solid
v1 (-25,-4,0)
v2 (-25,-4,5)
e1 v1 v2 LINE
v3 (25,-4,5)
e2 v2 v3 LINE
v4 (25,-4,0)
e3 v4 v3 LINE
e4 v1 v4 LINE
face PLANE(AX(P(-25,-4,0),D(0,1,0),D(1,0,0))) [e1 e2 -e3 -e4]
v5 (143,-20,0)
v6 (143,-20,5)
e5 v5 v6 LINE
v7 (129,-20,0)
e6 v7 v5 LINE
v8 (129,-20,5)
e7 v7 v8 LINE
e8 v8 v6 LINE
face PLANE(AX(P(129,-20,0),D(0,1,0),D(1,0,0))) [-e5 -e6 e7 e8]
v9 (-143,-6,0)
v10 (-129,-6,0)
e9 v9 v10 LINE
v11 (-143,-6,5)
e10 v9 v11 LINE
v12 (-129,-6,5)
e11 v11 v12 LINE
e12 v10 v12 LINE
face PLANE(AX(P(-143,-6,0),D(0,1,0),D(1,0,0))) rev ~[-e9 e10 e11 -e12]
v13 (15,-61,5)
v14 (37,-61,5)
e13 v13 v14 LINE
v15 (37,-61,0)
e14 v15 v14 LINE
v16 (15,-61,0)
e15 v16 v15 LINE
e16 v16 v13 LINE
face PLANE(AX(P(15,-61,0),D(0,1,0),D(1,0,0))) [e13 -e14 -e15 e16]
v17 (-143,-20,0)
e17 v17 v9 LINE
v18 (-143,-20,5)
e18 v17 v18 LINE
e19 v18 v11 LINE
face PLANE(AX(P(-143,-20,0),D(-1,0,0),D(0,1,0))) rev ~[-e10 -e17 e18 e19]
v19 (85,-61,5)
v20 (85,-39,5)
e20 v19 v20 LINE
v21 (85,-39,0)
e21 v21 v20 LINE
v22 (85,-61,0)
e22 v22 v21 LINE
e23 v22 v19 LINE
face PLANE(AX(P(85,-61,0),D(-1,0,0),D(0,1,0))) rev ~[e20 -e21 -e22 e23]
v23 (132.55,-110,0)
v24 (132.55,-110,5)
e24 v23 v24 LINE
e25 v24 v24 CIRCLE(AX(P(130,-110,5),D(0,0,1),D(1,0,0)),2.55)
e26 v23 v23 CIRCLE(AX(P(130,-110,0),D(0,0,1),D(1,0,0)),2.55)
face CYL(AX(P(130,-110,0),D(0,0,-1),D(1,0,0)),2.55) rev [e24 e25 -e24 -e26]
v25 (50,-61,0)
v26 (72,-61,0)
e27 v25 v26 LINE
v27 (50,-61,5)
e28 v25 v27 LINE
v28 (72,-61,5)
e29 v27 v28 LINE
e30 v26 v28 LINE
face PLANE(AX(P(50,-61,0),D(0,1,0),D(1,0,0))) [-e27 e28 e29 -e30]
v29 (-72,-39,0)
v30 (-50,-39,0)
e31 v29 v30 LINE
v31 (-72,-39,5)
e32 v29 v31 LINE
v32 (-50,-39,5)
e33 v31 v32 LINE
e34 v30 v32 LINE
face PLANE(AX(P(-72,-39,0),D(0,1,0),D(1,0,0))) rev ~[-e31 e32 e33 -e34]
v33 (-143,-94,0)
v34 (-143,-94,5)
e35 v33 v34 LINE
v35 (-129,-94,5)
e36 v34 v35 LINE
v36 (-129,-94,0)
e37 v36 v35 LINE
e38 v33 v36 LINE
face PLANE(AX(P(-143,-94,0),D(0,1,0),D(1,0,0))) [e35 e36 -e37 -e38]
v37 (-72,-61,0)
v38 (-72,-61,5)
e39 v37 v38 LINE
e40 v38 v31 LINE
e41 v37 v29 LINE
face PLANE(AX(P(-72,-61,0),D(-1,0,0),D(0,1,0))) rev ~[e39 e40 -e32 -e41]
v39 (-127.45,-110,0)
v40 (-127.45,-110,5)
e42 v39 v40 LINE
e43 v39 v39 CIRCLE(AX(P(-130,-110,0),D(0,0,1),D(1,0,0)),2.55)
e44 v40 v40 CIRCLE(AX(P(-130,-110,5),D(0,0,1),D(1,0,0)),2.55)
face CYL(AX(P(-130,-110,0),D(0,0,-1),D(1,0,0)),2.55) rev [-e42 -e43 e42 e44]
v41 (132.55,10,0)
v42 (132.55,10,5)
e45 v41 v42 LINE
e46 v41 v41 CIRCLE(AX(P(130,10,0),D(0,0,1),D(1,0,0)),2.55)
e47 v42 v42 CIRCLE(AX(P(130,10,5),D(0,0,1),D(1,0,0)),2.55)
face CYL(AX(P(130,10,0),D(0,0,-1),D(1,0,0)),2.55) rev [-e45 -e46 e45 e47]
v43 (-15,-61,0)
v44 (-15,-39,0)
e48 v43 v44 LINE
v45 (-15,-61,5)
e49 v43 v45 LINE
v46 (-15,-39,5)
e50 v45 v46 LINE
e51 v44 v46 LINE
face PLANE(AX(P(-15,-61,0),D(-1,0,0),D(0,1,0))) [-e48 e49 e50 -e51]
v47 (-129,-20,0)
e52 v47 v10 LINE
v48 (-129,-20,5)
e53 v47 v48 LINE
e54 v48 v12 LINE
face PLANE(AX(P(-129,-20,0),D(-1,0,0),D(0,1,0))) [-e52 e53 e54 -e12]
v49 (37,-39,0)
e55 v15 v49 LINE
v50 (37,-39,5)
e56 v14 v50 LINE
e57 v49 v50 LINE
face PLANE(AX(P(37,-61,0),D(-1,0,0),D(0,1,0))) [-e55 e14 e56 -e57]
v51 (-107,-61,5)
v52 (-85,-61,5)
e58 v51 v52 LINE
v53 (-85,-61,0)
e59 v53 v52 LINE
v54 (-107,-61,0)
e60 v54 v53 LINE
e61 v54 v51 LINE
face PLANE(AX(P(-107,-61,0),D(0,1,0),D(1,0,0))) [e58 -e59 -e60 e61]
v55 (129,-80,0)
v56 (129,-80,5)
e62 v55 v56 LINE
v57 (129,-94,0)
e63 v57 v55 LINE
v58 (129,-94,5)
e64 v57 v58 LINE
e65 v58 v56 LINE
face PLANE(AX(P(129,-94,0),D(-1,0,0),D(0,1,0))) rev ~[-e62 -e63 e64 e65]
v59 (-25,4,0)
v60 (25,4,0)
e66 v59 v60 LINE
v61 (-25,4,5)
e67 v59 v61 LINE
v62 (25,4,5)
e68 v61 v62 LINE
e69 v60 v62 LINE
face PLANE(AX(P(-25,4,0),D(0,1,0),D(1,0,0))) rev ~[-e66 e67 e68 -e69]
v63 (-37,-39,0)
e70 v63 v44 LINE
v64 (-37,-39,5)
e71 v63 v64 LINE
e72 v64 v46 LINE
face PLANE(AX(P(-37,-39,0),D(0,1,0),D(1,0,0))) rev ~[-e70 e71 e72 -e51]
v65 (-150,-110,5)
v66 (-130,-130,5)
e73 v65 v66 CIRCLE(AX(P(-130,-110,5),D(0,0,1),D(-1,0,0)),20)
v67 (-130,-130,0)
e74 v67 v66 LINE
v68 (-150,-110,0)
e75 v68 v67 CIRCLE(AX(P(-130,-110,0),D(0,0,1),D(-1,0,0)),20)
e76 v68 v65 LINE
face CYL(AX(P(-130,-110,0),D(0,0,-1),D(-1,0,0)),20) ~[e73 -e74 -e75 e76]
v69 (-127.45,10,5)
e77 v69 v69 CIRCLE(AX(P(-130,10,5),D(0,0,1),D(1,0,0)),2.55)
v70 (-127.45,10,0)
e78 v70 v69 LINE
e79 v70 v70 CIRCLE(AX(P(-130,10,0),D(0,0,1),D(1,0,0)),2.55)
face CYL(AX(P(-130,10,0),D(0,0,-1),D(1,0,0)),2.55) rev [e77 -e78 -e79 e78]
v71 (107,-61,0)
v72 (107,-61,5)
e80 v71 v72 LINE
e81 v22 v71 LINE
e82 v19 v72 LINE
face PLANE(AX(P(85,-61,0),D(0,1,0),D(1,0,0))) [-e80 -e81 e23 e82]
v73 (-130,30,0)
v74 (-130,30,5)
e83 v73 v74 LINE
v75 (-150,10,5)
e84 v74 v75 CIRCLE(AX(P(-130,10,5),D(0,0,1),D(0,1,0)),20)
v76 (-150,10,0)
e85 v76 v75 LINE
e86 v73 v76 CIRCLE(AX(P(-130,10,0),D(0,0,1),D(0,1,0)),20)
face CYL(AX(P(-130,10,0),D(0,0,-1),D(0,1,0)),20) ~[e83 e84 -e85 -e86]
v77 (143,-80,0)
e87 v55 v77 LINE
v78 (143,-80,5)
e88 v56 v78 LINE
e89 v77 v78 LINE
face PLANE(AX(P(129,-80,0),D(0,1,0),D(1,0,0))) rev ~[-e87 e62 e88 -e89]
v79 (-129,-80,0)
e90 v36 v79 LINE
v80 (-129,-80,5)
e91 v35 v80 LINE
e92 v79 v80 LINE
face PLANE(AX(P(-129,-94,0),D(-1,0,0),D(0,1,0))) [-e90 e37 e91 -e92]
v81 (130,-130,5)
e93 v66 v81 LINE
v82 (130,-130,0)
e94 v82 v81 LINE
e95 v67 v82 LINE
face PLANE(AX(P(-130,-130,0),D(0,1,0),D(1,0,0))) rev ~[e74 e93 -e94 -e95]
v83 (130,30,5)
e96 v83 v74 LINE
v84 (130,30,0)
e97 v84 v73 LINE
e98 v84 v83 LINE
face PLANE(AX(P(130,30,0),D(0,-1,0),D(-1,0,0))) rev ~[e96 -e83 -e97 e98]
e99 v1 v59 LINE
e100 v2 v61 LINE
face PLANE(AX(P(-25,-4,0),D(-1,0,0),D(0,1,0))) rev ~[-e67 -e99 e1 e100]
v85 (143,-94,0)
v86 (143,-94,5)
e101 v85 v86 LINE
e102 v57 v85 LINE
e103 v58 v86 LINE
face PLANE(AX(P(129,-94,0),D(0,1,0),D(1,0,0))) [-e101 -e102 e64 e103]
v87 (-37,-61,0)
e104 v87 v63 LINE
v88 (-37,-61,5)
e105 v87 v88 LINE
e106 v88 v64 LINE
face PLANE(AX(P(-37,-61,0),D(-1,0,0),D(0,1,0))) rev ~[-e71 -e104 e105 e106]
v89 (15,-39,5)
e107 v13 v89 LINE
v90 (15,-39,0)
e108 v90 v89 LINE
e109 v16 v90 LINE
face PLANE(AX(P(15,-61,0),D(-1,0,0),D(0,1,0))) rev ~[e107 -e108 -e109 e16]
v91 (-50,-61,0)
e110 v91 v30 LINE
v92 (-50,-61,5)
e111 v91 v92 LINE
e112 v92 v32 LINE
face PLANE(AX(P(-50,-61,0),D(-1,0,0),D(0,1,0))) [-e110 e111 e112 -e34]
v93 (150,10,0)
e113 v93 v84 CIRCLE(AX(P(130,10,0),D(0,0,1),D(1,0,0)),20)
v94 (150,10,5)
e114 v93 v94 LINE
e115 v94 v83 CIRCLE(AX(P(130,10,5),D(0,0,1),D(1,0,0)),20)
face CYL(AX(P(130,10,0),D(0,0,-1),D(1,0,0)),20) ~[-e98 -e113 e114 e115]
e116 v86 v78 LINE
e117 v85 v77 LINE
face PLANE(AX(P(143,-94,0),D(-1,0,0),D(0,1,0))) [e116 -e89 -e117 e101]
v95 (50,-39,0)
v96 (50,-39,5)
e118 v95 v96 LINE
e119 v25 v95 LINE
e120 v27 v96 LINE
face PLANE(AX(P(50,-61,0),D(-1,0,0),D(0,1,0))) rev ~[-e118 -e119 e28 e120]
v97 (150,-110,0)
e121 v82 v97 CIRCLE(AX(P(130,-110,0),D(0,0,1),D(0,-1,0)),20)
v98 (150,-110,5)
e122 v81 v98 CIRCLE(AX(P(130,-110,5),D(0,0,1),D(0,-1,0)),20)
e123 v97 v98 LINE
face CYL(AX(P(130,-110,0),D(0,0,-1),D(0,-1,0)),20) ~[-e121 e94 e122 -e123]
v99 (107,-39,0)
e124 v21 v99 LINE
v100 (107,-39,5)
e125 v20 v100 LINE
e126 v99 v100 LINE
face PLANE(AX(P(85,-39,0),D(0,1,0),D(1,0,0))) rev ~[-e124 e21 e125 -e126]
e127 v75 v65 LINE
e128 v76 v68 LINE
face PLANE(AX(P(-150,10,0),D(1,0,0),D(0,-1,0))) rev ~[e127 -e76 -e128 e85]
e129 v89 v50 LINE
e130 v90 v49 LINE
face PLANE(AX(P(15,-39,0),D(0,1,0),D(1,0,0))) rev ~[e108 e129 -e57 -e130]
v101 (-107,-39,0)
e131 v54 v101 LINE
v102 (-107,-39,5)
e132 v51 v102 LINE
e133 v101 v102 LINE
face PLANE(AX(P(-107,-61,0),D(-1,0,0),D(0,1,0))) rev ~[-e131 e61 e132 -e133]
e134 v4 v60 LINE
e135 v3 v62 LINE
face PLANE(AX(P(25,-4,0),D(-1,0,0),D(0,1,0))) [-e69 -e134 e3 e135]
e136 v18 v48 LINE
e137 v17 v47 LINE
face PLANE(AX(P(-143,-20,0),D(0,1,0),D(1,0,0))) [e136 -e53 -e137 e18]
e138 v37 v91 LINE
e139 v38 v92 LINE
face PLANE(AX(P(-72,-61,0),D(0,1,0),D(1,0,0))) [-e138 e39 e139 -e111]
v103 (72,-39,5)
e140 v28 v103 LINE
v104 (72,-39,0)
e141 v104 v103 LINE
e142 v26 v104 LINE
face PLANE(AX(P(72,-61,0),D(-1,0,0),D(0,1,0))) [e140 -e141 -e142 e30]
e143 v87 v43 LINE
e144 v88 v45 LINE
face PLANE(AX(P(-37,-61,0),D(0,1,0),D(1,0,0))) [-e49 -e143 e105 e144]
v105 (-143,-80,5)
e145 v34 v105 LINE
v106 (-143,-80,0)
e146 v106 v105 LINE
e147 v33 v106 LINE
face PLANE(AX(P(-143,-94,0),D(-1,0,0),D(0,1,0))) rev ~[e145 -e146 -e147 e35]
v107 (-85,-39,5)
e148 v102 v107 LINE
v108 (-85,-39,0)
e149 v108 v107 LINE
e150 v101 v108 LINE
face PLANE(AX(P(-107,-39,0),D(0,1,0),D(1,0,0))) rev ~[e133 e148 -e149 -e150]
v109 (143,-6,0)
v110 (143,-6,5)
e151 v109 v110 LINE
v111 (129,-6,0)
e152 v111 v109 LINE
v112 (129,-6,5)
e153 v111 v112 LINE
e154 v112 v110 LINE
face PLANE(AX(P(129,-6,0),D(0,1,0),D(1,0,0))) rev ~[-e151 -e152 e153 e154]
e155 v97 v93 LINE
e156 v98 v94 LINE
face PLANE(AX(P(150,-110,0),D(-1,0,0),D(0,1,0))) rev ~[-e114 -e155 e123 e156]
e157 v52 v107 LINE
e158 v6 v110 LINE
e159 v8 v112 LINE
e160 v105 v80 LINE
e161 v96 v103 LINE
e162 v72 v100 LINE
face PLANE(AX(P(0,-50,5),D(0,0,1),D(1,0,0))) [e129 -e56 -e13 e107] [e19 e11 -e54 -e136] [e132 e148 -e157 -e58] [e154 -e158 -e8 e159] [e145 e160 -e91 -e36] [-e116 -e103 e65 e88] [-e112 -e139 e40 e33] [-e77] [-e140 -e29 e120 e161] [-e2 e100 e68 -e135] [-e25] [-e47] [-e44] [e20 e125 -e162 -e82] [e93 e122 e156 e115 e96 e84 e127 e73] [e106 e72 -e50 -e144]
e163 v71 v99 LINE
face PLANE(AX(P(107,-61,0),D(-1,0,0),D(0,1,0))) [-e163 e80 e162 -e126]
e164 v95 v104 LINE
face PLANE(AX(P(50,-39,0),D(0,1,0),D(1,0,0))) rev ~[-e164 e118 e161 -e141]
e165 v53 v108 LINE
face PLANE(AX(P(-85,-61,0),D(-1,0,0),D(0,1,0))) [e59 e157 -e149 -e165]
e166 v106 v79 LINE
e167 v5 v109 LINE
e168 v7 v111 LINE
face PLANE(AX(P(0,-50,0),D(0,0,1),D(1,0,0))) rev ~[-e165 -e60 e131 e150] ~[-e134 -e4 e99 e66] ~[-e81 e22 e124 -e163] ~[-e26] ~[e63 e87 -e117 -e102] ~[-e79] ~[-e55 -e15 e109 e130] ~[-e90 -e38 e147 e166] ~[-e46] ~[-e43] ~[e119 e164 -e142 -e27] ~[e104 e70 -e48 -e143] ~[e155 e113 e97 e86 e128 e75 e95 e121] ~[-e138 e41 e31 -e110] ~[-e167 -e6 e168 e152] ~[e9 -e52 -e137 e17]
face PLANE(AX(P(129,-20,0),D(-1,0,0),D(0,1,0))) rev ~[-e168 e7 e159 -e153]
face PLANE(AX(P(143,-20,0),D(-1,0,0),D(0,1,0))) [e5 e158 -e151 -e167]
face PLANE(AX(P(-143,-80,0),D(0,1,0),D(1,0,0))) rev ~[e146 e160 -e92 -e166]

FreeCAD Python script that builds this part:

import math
import FreeCAD as App
import Part
import Sketcher
from FreeCAD import Vector


def add_polygon(sketch, points):
    """Adds a closed chain of lines whose ends are joined by coincident constraints."""
    first, n = sketch.GeometryCount, len(points)
    for a, b in zip(points, points[1:] + points[:1]):
        sketch.addGeometry(Part.LineSegment(App.Vector(*a, 0), App.Vector(*b, 0)), False)
    for i in range(n):
        sketch.addConstraint(Sketcher.Constraint("Coincident", first + i, 2, first + (i + 1) % n, 1))

doc = App.newDocument("Part")
body = doc.addObject("PartDesign::Body", "Body")

# Sketch on XY plane
sketch1 = body.newObject("Sketcher::SketchObject", "Sketch")
sketch1.AttachmentSupport = (doc.getObject("XY_Plane"), [""])
sketch1.MapMode = "FlatFace"
sketch1.addGeometry(Part.LineSegment(Vector(-130, -130, 0), Vector(130, -130, 0)), False)  # 0
sketch1.addGeometry(Part.ArcOfCircle(Part.Circle(Vector(130, -110, 0), Vector(0, 0, 1), 20), math.radians(-90), math.radians(0)), False)  # 1
sketch1.addGeometry(Part.LineSegment(Vector(150, -110, 0), Vector(150, 10, 0)), False)  # 2
sketch1.addGeometry(Part.ArcOfCircle(Part.Circle(Vector(130, 10, 0), Vector(0, 0, 1), 20), math.radians(0), math.radians(90)), False)  # 3
sketch1.addGeometry(Part.LineSegment(Vector(130, 30, 0), Vector(-130, 30, 0)), False)  # 4
sketch1.addGeometry(Part.ArcOfCircle(Part.Circle(Vector(-130, 10, 0), Vector(0, 0, 1), 20), math.radians(90), math.radians(180)), False)  # 5
sketch1.addGeometry(Part.LineSegment(Vector(-150, 10, 0), Vector(-150, -110, 0)), False)  # 6
sketch1.addGeometry(Part.ArcOfCircle(Part.Circle(Vector(-130, -110, 0), Vector(0, 0, 1), 20), math.radians(180), math.radians(270)), False)  # 7
sketch1.addGeometry(Part.Circle(Vector(-130, -110, 0), Vector(0, 0, 1), 2.5), False)  # 8
add_polygon(sketch1, [(-129, -94), (-143, -94), (-143, -80), (-129, -80)])  # lines 9-12
sketch1.addGeometry(Part.Circle(Vector(130, -110, 0), Vector(0, 0, 1), 2.5), False)  # 13
add_polygon(sketch1, [(143, -94), (129, -94), (129, -80), (143, -80)])  # lines 14-17
add_polygon(sketch1, [(-85, -61), (-107, -61), (-107, -39), (-85, -39)])  # lines 18-21
add_polygon(sketch1, [(-50, -61), (-72, -61), (-72, -39), (-50, -39)])  # lines 22-25
add_polygon(sketch1, [(-15, -61), (-37, -61), (-37, -39), (-15, -39)])  # lines 26-29
add_polygon(sketch1, [(-129, -20), (-143, -20), (-143, -6), (-129, -6)])  # lines 30-33
sketch1.addGeometry(Part.Circle(Vector(-130, 10, 0), Vector(0, 0, 1), 2.5), False)  # 34
add_polygon(sketch1, [(37, -61), (15, -61), (15, -39), (37, -39)])  # lines 35-38
add_polygon(sketch1, [(72, -61), (50, -61), (50, -39), (72, -39)])  # lines 39-42
add_polygon(sketch1, [(107, -61), (85, -61), (85, -39), (107, -39)])  # lines 43-46
add_polygon(sketch1, [(25, -4), (-25, -4), (-25, 4), (25, 4)])  # lines 47-50
add_polygon(sketch1, [(143, -20), (129, -20), (129, -6), (143, -6)])  # lines 51-54
sketch1.addGeometry(Part.Circle(Vector(130, 10, 0), Vector(0, 0, 1), 2.5), False)  # 55
sketch1.addConstraint(Sketcher.Constraint("Tangent", 0, 2, 1, 1))
sketch1.addConstraint(Sketcher.Constraint("Tangent", 1, 2, 2, 1))
sketch1.addConstraint(Sketcher.Constraint("Tangent", 2, 2, 3, 1))
sketch1.addConstraint(Sketcher.Constraint("Tangent", 3, 2, 4, 1))
sketch1.addConstraint(Sketcher.Constraint("Tangent", 4, 2, 5, 1))
sketch1.addConstraint(Sketcher.Constraint("Tangent", 5, 2, 6, 1))
sketch1.addConstraint(Sketcher.Constraint("Tangent", 6, 2, 7, 1))
sketch1.addConstraint(Sketcher.Constraint("Tangent", 7, 2, 0, 1))
sketch1.addConstraint(Sketcher.Constraint("Horizontal", 0))
sketch1.addConstraint(Sketcher.Constraint("Vertical", 2))
sketch1.addConstraint(Sketcher.Constraint("Horizontal", 4))
sketch1.addConstraint(Sketcher.Constraint("Vertical", 6))
sketch1.addConstraint(Sketcher.Constraint("Horizontal", 9))
sketch1.addConstraint(Sketcher.Constraint("Vertical", 10))
sketch1.addConstraint(Sketcher.Constraint("Horizontal", 11))
sketch1.addConstraint(Sketcher.Constraint("Vertical", 12))
sketch1.addConstraint(Sketcher.Constraint("Horizontal", 14))
sketch1.addConstraint(Sketcher.Constraint("Vertical", 15))
sketch1.addConstraint(Sketcher.Constraint("Horizontal", 16))
sketch1.addConstraint(Sketcher.Constraint("Vertical", 17))
sketch1.addConstraint(Sketcher.Constraint("Horizontal", 18))
sketch1.addConstraint(Sketcher.Constraint("Vertical", 19))
sketch1.addConstraint(Sketcher.Constraint("Horizontal", 20))
sketch1.addConstraint(Sketcher.Constraint("Vertical", 21))
sketch1.addConstraint(Sketcher.Constraint("Horizontal", 22))
sketch1.addConstraint(Sketcher.Constraint("Vertical", 23))
sketch1.addConstraint(Sketcher.Constraint("Horizontal", 24))
sketch1.addConstraint(Sketcher.Constraint("Vertical", 25))
sketch1.addConstraint(Sketcher.Constraint("Horizontal", 26))
sketch1.addConstraint(Sketcher.Constraint("Vertical", 27))
sketch1.addConstraint(Sketcher.Constraint("Horizontal", 28))
sketch1.addConstraint(Sketcher.Constraint("Vertical", 29))
sketch1.addConstraint(Sketcher.Constraint("Horizontal", 30))
sketch1.addConstraint(Sketcher.Constraint("Vertical", 31))
sketch1.addConstraint(Sketcher.Constraint("Horizontal", 32))
sketch1.addConstraint(Sketcher.Constraint("Vertical", 33))
sketch1.addConstraint(Sketcher.Constraint("Horizontal", 35))
sketch1.addConstraint(Sketcher.Constraint("Vertical", 36))
sketch1.addConstraint(Sketcher.Constraint("Horizontal", 37))
sketch1.addConstraint(Sketcher.Constraint("Vertical", 38))
sketch1.addConstraint(Sketcher.Constraint("Horizontal", 39))
sketch1.addConstraint(Sketcher.Constraint("Vertical", 40))
sketch1.addConstraint(Sketcher.Constraint("Horizontal", 41))
sketch1.addConstraint(Sketcher.Constraint("Vertical", 42))
sketch1.addConstraint(Sketcher.Constraint("Horizontal", 43))
sketch1.addConstraint(Sketcher.Constraint("Vertical", 44))
sketch1.addConstraint(Sketcher.Constraint("Horizontal", 45))
sketch1.addConstraint(Sketcher.Constraint("Vertical", 46))
sketch1.addConstraint(Sketcher.Constraint("Horizontal", 47))
sketch1.addConstraint(Sketcher.Constraint("Vertical", 48))
sketch1.addConstraint(Sketcher.Constraint("Horizontal", 49))
sketch1.addConstraint(Sketcher.Constraint("Vertical", 50))
sketch1.addConstraint(Sketcher.Constraint("Horizontal", 51))
sketch1.addConstraint(Sketcher.Constraint("Vertical", 52))
sketch1.addConstraint(Sketcher.Constraint("Horizontal", 53))
sketch1.addConstraint(Sketcher.Constraint("Vertical", 54))
sketch1.addConstraint(Sketcher.Constraint("Coincident", 8, 3, 7, 3))
sketch1.addConstraint(Sketcher.Constraint("Coincident", 13, 3, 1, 3))
sketch1.addConstraint(Sketcher.Constraint("Coincident", 34, 3, 5, 3))
sketch1.addConstraint(Sketcher.Constraint("Coincident", 55, 3, 3, 3))
sketch1.addConstraint(Sketcher.Constraint("Equal", 1, 3))
sketch1.addConstraint(Sketcher.Constraint("Equal", 3, 5))
sketch1.addConstraint(Sketcher.Constraint("Equal", 5, 7))
sketch1.addConstraint(Sketcher.Constraint("Equal", 8, 13))
sketch1.addConstraint(Sketcher.Constraint("Equal", 13, 34))
sketch1.addConstraint(Sketcher.Constraint("Equal", 34, 55))
sketch1.addConstraint(Sketcher.Constraint("Symmetric", 47, 2, 49, 2, -1, 1))
sketch1.addConstraint(Sketcher.Constraint("Symmetric", 12, 2, 14, 2, -2))
sketch1.addConstraint(Sketcher.Constraint("Symmetric", 10, 2, 16, 2, -2))
sketch1.addConstraint(Sketcher.Constraint("Symmetric", 29, 2, 35, 2, -2))
sketch1.addConstraint(Sketcher.Constraint("Symmetric", 27, 2, 37, 2, -2))
sketch1.addConstraint(Sketcher.Constraint("Symmetric", 25, 2, 39, 2, -2))
sketch1.addConstraint(Sketcher.Constraint("Symmetric", 23, 2, 41, 2, -2))
sketch1.addConstraint(Sketcher.Constraint("Symmetric", 21, 2, 43, 2, -2))
sketch1.addConstraint(Sketcher.Constraint("Symmetric", 19, 2, 45, 2, -2))
sketch1.addConstraint(Sketcher.Constraint("Symmetric", 33, 2, 51, 2, -2))
sketch1.addConstraint(Sketcher.Constraint("Symmetric", 31, 2, 53, 2, -2))
sketch1.addConstraint(Sketcher.Constraint("Horizontal", 21, 2, 22, 2))
sketch1.addConstraint(Sketcher.Constraint("Horizontal", 20, 2, 23, 2))
sketch1.addConstraint(Sketcher.Constraint("Horizontal", 25, 2, 26, 2))
sketch1.addConstraint(Sketcher.Constraint("Horizontal", 24, 2, 27, 2))
sketch1.addConstraint(Sketcher.Constraint("Vertical", 10, 2, 30, 2))
sketch1.addConstraint(Sketcher.Constraint("Vertical", 12, 2, 32, 2))
sketch1.addConstraint(Sketcher.Constraint("Equal", 20, 22))
sketch1.addConstraint(Sketcher.Constraint("Equal", 24, 26))
sketch1.addConstraint(Sketcher.Constraint("Equal", 53, 10))
sketch1.addConstraint(Sketcher.Constraint("Equal", 45, 19))
sketch1.addConstraint(Sketcher.Constraint("Equal", 17, 31))
sketch1.addConstraint(Sketcher.Constraint("Radius", 1, 20.0))
sketch1.addConstraint(Sketcher.Constraint("Diameter", 8, 5.1))
sketch1.addConstraint(Sketcher.Constraint("DistanceX", 0, 1, 0, 2, 260.0))
sketch1.addConstraint(Sketcher.Constraint("DistanceX", 9, 2, 9, 1, 14.0))
sketch1.addConstraint(Sketcher.Constraint("DistanceX", 18, 2, 18, 1, 22.0))
sketch1.addConstraint(Sketcher.Constraint("DistanceX", 47, 2, 47, 1, 50.0))
sketch1.addConstraint(Sketcher.Constraint("DistanceY", 2, 1, 2, 2, 120.0))
sketch1.addConstraint(Sketcher.Constraint("DistanceY", 48, 1, 48, 2, 8.0))
sketch1.addConstraint(Sketcher.Constraint("DistanceX", -1, 1, 1, 3, 130.0))
sketch1.addConstraint(Sketcher.Constraint("DistanceY", 1, 3, -1, 1, 110.0))
sketch1.addConstraint(Sketcher.Constraint("DistanceX", 9, 2, -1, 1, 143.0))
sketch1.addConstraint(Sketcher.Constraint("DistanceY", 9, 2, -1, 1, 94.0))
sketch1.addConstraint(Sketcher.Constraint("DistanceX", 18, 2, -1, 1, 107.0))
sketch1.addConstraint(Sketcher.Constraint("DistanceY", 18, 2, -1, 1, 61.0))
sketch1.addConstraint(Sketcher.Constraint("DistanceX", 22, 2, -1, 1, 72.0))
sketch1.addConstraint(Sketcher.Constraint("DistanceX", 26, 2, -1, 1, 37.0))
sketch1.addConstraint(Sketcher.Constraint("DistanceY", 30, 2, -1, 1, 20.0))
pad1 = body.newObject("PartDesign::Pad", "Pad")
pad1.Profile = sketch1
pad1.Length = 5

doc.recompute()
